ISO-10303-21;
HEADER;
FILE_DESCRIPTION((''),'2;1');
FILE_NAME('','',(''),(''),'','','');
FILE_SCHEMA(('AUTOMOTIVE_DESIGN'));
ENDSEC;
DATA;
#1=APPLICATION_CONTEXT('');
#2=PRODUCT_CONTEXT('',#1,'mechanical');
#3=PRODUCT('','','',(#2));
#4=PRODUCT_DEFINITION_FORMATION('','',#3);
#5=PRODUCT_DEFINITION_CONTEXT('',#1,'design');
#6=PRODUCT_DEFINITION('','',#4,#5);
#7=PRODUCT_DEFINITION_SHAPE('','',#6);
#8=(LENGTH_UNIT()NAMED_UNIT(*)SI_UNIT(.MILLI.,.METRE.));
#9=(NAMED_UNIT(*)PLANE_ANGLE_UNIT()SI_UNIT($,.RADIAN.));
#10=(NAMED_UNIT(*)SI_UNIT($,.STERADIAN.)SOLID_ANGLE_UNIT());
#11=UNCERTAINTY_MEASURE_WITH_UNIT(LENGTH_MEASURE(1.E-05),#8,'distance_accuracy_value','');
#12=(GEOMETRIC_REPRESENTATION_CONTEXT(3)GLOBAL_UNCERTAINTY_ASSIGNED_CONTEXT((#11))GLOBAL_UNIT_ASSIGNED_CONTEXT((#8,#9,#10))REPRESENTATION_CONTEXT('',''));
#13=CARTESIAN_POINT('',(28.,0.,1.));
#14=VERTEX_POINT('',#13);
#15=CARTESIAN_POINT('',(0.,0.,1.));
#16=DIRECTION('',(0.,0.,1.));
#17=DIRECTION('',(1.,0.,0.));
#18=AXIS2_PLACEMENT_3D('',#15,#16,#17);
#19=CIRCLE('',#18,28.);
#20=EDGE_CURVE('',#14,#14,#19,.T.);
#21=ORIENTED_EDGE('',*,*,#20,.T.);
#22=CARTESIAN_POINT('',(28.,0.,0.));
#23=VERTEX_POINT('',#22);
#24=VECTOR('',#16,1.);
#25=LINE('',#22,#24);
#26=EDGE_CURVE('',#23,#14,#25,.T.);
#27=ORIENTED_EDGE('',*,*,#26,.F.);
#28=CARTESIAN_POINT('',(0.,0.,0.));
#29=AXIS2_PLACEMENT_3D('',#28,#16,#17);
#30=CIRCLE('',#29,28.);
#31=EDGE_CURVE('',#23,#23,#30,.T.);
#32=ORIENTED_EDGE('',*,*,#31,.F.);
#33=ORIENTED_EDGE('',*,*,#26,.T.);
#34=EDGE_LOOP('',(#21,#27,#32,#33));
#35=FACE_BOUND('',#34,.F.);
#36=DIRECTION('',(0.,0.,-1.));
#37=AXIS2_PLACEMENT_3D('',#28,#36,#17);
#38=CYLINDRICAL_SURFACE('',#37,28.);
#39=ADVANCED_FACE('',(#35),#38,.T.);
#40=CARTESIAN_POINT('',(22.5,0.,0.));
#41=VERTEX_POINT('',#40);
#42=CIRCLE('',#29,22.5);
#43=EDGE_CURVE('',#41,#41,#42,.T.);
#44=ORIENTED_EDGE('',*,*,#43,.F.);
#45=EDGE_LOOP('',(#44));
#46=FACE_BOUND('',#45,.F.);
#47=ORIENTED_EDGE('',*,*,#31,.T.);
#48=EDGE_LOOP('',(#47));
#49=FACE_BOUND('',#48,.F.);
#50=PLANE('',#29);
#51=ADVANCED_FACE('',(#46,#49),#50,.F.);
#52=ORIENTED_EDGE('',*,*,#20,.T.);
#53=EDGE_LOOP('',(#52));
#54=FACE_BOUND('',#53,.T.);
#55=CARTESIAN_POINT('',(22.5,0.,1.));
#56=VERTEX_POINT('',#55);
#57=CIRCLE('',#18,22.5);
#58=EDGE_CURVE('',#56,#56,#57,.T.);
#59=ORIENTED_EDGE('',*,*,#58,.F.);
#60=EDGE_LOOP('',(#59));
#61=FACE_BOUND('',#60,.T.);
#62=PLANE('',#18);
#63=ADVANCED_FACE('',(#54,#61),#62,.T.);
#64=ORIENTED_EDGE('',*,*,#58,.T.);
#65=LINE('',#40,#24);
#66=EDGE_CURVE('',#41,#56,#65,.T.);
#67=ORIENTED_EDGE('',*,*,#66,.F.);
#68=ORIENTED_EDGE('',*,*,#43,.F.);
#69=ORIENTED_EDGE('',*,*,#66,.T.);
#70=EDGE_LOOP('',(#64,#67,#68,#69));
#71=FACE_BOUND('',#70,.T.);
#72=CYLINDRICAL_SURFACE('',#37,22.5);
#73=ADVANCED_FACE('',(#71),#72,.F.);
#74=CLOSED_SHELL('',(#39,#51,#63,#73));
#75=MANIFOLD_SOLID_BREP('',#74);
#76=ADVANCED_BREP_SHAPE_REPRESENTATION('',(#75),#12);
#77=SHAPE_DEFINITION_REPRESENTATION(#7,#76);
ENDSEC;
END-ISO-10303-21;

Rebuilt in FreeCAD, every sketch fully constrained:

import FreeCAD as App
import Part
import Sketcher
from FreeCAD import Vector

doc = App.newDocument("Part")
params = doc.addObject("Spreadsheet::Sheet", "Params")
for row, (alias, value) in enumerate([
    ("sketch1_diameter", "56 mm"),
    ("sketch1_diameter2", "45 mm"),
    ("pad1_length", "1 mm"),
], start=1):
    params.set(f"A{row}", alias)
    params.set(f"B{row}", "=" + value)
    params.setAlias(f"B{row}", alias)

body = doc.addObject("PartDesign::Body", "Body")

# Sketch on XY plane
sketch1 = doc.addObject("Sketcher::SketchObject", "Sketch")
body.addObject(sketch1)
sketch1.AttachmentSupport = (doc.XY_Plane, [""])
sketch1.MapMode = "FlatFace"
sketch1.addGeometry(Part.Circle(Vector(0, 0, 0), Vector(0, 0, 1), 28), False)
sketch1.addGeometry(Part.Circle(Vector(0, 0, 0), Vector(0, 0, 1), 22), False)
sketch1.addConstraint(Sketcher.Constraint("Coincident", 0, 3, -1, 1))
sketch1.addConstraint(Sketcher.Constraint("Coincident", 1, 3, -1, 1))
sketch1.addConstraint(Sketcher.Constraint("Diameter", 0, 56.0))
sketch1.addConstraint(Sketcher.Constraint("Diameter", 1, 45.0))
sketch1.setExpression("Constraints[2]", "Params.sketch1_diameter")
sketch1.setExpression("Constraints[3]", "Params.sketch1_diameter2")
pad1 = doc.addObject("PartDesign::Pad", "Pad")
body.addObject(pad1)
pad1.Profile = sketch1
pad1.setExpression("Length", "Params.pad1_length")

doc.recompute()
